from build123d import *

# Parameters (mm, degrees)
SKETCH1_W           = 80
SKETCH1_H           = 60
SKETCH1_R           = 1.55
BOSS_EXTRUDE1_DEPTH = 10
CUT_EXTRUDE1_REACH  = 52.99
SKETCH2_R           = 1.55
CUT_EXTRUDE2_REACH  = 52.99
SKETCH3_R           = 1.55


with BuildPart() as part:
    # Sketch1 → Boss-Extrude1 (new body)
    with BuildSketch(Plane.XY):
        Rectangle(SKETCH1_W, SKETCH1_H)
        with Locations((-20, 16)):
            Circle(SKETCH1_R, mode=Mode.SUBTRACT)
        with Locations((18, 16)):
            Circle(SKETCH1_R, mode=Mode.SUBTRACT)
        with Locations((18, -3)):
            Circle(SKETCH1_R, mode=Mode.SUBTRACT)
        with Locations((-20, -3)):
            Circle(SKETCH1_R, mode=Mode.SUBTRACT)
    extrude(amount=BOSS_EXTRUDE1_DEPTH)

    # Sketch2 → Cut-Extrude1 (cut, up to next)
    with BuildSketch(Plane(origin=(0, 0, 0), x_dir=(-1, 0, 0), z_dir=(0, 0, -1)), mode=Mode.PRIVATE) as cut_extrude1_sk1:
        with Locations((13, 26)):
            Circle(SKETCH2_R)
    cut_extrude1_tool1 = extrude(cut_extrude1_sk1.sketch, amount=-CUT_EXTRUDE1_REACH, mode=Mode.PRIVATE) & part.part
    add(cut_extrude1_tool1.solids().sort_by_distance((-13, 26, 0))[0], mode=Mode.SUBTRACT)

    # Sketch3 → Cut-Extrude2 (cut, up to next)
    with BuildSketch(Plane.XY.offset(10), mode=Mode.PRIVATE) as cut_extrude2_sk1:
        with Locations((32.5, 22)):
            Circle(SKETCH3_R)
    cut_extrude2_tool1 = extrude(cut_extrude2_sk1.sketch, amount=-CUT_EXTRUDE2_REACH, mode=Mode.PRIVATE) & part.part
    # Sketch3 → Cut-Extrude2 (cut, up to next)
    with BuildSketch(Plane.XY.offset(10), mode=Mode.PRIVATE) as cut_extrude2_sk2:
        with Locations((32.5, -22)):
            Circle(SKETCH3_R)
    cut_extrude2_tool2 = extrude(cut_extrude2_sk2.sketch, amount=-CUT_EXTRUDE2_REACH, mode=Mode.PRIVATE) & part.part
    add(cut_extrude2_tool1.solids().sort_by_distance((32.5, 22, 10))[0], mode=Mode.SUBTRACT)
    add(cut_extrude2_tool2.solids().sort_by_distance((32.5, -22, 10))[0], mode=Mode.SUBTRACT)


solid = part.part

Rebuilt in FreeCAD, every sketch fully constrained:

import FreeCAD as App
import Part
import Sketcher


def add_polygon(sketch, points):
    """Adds a closed chain of lines whose ends are joined by coincident constraints."""
    first, n = sketch.GeometryCount, len(points)
    for a, b in zip(points, points[1:] + points[:1]):
        sketch.addGeometry(Part.LineSegment(App.Vector(*a, 0), App.Vector(*b, 0)), False)
    for i in range(n):
        sketch.addConstraint(Sketcher.Constraint("Coincident", first + i, 2, first + (i + 1) % n, 1))

doc = App.newDocument("Part")
body = doc.addObject("PartDesign::Body", "Body")

sketch1 = doc.addObject("Sketcher::SketchObject", "Sketch")
body.addObject(sketch1)
sketch1.AttachmentSupport = (doc.XY_Plane, [""])
sketch1.MapMode = "FlatFace"
add_polygon(sketch1, [(-40, 30), (-40, -30), (40, -30), (40, 30)])
sketch1.addGeometry(Part.Circle(App.Vector(-20, -3, 0), App.Vector(0, 0, 1), 1.6), False)
sketch1.addGeometry(Part.Circle(App.Vector(18, -3, 0), App.Vector(0, 0, 1), 1.6), False)
sketch1.addGeometry(Part.Circle(App.Vector(-20, 16, 0), App.Vector(0, 0, 1), 1.6), False)
sketch1.addGeometry(Part.Circle(App.Vector(18, 16, 0), App.Vector(0, 0, 1), 1.6), False)
sketch1.addConstraint([
    Sketcher.Constraint("Vertical", 0),
    Sketcher.Constraint("Horizontal", 1),
    Sketcher.Constraint("Vertical", 2),
    Sketcher.Constraint("Horizontal", 3),
    Sketcher.Constraint("Equal", 4, 5),
    Sketcher.Constraint("Equal", 5, 6),
    Sketcher.Constraint("Equal", 6, 7),
    Sketcher.Constraint("Symmetric", 0, 2, 2, 2, -1, 1),
    Sketcher.Constraint("Horizontal", 4, 3, 5, 3),
    Sketcher.Constraint("Horizontal", 6, 3, 7, 3),
    Sketcher.Constraint("Vertical", 4, 3, 6, 3),
    Sketcher.Constraint("Vertical", 5, 3, 7, 3),
    Sketcher.Constraint("Diameter", 4, 3.1),
    Sketcher.Constraint("DistanceX", 1, 1, 1, 2, 80.0),
    Sketcher.Constraint("DistanceY", 0, 2, 0, 1, 60.0),
    Sketcher.Constraint("DistanceX", 4, 3, -1, 1, 20.0),
    Sketcher.Constraint("DistanceY", 4, 3, -1, 1, 3.0),
    Sketcher.Constraint("DistanceX", -1, 1, 5, 3, 18.0),
    Sketcher.Constraint("DistanceY", -1, 1, 6, 3, 16.0),
])
pad1 = doc.addObject("PartDesign::Pad", "Pad")
body.addObject(pad1)
pad1.Profile = sketch1
pad1.Length = 10

sketch2 = doc.addObject("Sketcher::SketchObject", "Sketch001")
body.addObject(sketch2)
sketch2.AttachmentSupport = (doc.XY_Plane, [""])
sketch2.MapMode = "FlatFace"
sketch2.addGeometry(Part.Circle(App.Vector(-13, 26, 0), App.Vector(0, 0, 1), 1.6), False)
sketch2.addConstraint([
    Sketcher.Constraint("Diameter", 0, 3.1),
    Sketcher.Constraint("DistanceX", 0, 3, -1, 1, 13.0),
    Sketcher.Constraint("DistanceY", -1, 1, 0, 3, 26.0),
])
pocket1 = doc.addObject("PartDesign::Pocket", "Pocket")
body.addObject(pocket1)
pocket1.Profile = sketch2
pocket1.Type = "UpToFirst"
pocket1.Reversed = True

sketch3 = doc.addObject("Sketcher::SketchObject", "Sketch002")
body.addObject(sketch3)
sketch3.AttachmentSupport = (doc.XY_Plane, [""])
sketch3.MapMode = "FlatFace"
sketch3.AttachmentOffset = App.Placement(App.Vector(0, 0, 10), App.Rotation())
sketch3.addGeometry(Part.Circle(App.Vector(32.5, 22, 0), App.Vector(0, 0, 1), 1.6), False)
sketch3.addConstraint([
    Sketcher.Constraint("Diameter", 0, 3.1),
    Sketcher.Constraint("DistanceY", -1, 1, 0, 3, 22.0),
    Sketcher.Constraint("DistanceX", -1, 1, 0, 3, 32.5),
])
pocket2 = doc.addObject("PartDesign::Pocket", "Pocket001")
body.addObject(pocket2)
pocket2.Profile = sketch3
pocket2.Type = "UpToFirst"

sketch4 = doc.addObject("Sketcher::SketchObject", "Sketch003")
body.addObject(sketch4)
sketch4.AttachmentSupport = (doc.XY_Plane, [""])
sketch4.MapMode = "FlatFace"
sketch4.AttachmentOffset = App.Placement(App.Vector(0, 0, 10), App.Rotation())
sketch4.addGeometry(Part.Circle(App.Vector(32.5, -22, 0), App.Vector(0, 0, 1), 1.6), False)
sketch4.addConstraint([
    Sketcher.Constraint("Diameter", 0, 3.1),
    Sketcher.Constraint("DistanceY", 0, 3, -1, 1, 22.0),
    Sketcher.Constraint("DistanceX", -1, 1, 0, 3, 32.5),
])
pocket3 = doc.addObject("PartDesign::Pocket", "Pocket002")
body.addObject(pocket3)
pocket3.Profile = sketch4
pocket3.Type = "UpToFirst"

doc.recompute()
